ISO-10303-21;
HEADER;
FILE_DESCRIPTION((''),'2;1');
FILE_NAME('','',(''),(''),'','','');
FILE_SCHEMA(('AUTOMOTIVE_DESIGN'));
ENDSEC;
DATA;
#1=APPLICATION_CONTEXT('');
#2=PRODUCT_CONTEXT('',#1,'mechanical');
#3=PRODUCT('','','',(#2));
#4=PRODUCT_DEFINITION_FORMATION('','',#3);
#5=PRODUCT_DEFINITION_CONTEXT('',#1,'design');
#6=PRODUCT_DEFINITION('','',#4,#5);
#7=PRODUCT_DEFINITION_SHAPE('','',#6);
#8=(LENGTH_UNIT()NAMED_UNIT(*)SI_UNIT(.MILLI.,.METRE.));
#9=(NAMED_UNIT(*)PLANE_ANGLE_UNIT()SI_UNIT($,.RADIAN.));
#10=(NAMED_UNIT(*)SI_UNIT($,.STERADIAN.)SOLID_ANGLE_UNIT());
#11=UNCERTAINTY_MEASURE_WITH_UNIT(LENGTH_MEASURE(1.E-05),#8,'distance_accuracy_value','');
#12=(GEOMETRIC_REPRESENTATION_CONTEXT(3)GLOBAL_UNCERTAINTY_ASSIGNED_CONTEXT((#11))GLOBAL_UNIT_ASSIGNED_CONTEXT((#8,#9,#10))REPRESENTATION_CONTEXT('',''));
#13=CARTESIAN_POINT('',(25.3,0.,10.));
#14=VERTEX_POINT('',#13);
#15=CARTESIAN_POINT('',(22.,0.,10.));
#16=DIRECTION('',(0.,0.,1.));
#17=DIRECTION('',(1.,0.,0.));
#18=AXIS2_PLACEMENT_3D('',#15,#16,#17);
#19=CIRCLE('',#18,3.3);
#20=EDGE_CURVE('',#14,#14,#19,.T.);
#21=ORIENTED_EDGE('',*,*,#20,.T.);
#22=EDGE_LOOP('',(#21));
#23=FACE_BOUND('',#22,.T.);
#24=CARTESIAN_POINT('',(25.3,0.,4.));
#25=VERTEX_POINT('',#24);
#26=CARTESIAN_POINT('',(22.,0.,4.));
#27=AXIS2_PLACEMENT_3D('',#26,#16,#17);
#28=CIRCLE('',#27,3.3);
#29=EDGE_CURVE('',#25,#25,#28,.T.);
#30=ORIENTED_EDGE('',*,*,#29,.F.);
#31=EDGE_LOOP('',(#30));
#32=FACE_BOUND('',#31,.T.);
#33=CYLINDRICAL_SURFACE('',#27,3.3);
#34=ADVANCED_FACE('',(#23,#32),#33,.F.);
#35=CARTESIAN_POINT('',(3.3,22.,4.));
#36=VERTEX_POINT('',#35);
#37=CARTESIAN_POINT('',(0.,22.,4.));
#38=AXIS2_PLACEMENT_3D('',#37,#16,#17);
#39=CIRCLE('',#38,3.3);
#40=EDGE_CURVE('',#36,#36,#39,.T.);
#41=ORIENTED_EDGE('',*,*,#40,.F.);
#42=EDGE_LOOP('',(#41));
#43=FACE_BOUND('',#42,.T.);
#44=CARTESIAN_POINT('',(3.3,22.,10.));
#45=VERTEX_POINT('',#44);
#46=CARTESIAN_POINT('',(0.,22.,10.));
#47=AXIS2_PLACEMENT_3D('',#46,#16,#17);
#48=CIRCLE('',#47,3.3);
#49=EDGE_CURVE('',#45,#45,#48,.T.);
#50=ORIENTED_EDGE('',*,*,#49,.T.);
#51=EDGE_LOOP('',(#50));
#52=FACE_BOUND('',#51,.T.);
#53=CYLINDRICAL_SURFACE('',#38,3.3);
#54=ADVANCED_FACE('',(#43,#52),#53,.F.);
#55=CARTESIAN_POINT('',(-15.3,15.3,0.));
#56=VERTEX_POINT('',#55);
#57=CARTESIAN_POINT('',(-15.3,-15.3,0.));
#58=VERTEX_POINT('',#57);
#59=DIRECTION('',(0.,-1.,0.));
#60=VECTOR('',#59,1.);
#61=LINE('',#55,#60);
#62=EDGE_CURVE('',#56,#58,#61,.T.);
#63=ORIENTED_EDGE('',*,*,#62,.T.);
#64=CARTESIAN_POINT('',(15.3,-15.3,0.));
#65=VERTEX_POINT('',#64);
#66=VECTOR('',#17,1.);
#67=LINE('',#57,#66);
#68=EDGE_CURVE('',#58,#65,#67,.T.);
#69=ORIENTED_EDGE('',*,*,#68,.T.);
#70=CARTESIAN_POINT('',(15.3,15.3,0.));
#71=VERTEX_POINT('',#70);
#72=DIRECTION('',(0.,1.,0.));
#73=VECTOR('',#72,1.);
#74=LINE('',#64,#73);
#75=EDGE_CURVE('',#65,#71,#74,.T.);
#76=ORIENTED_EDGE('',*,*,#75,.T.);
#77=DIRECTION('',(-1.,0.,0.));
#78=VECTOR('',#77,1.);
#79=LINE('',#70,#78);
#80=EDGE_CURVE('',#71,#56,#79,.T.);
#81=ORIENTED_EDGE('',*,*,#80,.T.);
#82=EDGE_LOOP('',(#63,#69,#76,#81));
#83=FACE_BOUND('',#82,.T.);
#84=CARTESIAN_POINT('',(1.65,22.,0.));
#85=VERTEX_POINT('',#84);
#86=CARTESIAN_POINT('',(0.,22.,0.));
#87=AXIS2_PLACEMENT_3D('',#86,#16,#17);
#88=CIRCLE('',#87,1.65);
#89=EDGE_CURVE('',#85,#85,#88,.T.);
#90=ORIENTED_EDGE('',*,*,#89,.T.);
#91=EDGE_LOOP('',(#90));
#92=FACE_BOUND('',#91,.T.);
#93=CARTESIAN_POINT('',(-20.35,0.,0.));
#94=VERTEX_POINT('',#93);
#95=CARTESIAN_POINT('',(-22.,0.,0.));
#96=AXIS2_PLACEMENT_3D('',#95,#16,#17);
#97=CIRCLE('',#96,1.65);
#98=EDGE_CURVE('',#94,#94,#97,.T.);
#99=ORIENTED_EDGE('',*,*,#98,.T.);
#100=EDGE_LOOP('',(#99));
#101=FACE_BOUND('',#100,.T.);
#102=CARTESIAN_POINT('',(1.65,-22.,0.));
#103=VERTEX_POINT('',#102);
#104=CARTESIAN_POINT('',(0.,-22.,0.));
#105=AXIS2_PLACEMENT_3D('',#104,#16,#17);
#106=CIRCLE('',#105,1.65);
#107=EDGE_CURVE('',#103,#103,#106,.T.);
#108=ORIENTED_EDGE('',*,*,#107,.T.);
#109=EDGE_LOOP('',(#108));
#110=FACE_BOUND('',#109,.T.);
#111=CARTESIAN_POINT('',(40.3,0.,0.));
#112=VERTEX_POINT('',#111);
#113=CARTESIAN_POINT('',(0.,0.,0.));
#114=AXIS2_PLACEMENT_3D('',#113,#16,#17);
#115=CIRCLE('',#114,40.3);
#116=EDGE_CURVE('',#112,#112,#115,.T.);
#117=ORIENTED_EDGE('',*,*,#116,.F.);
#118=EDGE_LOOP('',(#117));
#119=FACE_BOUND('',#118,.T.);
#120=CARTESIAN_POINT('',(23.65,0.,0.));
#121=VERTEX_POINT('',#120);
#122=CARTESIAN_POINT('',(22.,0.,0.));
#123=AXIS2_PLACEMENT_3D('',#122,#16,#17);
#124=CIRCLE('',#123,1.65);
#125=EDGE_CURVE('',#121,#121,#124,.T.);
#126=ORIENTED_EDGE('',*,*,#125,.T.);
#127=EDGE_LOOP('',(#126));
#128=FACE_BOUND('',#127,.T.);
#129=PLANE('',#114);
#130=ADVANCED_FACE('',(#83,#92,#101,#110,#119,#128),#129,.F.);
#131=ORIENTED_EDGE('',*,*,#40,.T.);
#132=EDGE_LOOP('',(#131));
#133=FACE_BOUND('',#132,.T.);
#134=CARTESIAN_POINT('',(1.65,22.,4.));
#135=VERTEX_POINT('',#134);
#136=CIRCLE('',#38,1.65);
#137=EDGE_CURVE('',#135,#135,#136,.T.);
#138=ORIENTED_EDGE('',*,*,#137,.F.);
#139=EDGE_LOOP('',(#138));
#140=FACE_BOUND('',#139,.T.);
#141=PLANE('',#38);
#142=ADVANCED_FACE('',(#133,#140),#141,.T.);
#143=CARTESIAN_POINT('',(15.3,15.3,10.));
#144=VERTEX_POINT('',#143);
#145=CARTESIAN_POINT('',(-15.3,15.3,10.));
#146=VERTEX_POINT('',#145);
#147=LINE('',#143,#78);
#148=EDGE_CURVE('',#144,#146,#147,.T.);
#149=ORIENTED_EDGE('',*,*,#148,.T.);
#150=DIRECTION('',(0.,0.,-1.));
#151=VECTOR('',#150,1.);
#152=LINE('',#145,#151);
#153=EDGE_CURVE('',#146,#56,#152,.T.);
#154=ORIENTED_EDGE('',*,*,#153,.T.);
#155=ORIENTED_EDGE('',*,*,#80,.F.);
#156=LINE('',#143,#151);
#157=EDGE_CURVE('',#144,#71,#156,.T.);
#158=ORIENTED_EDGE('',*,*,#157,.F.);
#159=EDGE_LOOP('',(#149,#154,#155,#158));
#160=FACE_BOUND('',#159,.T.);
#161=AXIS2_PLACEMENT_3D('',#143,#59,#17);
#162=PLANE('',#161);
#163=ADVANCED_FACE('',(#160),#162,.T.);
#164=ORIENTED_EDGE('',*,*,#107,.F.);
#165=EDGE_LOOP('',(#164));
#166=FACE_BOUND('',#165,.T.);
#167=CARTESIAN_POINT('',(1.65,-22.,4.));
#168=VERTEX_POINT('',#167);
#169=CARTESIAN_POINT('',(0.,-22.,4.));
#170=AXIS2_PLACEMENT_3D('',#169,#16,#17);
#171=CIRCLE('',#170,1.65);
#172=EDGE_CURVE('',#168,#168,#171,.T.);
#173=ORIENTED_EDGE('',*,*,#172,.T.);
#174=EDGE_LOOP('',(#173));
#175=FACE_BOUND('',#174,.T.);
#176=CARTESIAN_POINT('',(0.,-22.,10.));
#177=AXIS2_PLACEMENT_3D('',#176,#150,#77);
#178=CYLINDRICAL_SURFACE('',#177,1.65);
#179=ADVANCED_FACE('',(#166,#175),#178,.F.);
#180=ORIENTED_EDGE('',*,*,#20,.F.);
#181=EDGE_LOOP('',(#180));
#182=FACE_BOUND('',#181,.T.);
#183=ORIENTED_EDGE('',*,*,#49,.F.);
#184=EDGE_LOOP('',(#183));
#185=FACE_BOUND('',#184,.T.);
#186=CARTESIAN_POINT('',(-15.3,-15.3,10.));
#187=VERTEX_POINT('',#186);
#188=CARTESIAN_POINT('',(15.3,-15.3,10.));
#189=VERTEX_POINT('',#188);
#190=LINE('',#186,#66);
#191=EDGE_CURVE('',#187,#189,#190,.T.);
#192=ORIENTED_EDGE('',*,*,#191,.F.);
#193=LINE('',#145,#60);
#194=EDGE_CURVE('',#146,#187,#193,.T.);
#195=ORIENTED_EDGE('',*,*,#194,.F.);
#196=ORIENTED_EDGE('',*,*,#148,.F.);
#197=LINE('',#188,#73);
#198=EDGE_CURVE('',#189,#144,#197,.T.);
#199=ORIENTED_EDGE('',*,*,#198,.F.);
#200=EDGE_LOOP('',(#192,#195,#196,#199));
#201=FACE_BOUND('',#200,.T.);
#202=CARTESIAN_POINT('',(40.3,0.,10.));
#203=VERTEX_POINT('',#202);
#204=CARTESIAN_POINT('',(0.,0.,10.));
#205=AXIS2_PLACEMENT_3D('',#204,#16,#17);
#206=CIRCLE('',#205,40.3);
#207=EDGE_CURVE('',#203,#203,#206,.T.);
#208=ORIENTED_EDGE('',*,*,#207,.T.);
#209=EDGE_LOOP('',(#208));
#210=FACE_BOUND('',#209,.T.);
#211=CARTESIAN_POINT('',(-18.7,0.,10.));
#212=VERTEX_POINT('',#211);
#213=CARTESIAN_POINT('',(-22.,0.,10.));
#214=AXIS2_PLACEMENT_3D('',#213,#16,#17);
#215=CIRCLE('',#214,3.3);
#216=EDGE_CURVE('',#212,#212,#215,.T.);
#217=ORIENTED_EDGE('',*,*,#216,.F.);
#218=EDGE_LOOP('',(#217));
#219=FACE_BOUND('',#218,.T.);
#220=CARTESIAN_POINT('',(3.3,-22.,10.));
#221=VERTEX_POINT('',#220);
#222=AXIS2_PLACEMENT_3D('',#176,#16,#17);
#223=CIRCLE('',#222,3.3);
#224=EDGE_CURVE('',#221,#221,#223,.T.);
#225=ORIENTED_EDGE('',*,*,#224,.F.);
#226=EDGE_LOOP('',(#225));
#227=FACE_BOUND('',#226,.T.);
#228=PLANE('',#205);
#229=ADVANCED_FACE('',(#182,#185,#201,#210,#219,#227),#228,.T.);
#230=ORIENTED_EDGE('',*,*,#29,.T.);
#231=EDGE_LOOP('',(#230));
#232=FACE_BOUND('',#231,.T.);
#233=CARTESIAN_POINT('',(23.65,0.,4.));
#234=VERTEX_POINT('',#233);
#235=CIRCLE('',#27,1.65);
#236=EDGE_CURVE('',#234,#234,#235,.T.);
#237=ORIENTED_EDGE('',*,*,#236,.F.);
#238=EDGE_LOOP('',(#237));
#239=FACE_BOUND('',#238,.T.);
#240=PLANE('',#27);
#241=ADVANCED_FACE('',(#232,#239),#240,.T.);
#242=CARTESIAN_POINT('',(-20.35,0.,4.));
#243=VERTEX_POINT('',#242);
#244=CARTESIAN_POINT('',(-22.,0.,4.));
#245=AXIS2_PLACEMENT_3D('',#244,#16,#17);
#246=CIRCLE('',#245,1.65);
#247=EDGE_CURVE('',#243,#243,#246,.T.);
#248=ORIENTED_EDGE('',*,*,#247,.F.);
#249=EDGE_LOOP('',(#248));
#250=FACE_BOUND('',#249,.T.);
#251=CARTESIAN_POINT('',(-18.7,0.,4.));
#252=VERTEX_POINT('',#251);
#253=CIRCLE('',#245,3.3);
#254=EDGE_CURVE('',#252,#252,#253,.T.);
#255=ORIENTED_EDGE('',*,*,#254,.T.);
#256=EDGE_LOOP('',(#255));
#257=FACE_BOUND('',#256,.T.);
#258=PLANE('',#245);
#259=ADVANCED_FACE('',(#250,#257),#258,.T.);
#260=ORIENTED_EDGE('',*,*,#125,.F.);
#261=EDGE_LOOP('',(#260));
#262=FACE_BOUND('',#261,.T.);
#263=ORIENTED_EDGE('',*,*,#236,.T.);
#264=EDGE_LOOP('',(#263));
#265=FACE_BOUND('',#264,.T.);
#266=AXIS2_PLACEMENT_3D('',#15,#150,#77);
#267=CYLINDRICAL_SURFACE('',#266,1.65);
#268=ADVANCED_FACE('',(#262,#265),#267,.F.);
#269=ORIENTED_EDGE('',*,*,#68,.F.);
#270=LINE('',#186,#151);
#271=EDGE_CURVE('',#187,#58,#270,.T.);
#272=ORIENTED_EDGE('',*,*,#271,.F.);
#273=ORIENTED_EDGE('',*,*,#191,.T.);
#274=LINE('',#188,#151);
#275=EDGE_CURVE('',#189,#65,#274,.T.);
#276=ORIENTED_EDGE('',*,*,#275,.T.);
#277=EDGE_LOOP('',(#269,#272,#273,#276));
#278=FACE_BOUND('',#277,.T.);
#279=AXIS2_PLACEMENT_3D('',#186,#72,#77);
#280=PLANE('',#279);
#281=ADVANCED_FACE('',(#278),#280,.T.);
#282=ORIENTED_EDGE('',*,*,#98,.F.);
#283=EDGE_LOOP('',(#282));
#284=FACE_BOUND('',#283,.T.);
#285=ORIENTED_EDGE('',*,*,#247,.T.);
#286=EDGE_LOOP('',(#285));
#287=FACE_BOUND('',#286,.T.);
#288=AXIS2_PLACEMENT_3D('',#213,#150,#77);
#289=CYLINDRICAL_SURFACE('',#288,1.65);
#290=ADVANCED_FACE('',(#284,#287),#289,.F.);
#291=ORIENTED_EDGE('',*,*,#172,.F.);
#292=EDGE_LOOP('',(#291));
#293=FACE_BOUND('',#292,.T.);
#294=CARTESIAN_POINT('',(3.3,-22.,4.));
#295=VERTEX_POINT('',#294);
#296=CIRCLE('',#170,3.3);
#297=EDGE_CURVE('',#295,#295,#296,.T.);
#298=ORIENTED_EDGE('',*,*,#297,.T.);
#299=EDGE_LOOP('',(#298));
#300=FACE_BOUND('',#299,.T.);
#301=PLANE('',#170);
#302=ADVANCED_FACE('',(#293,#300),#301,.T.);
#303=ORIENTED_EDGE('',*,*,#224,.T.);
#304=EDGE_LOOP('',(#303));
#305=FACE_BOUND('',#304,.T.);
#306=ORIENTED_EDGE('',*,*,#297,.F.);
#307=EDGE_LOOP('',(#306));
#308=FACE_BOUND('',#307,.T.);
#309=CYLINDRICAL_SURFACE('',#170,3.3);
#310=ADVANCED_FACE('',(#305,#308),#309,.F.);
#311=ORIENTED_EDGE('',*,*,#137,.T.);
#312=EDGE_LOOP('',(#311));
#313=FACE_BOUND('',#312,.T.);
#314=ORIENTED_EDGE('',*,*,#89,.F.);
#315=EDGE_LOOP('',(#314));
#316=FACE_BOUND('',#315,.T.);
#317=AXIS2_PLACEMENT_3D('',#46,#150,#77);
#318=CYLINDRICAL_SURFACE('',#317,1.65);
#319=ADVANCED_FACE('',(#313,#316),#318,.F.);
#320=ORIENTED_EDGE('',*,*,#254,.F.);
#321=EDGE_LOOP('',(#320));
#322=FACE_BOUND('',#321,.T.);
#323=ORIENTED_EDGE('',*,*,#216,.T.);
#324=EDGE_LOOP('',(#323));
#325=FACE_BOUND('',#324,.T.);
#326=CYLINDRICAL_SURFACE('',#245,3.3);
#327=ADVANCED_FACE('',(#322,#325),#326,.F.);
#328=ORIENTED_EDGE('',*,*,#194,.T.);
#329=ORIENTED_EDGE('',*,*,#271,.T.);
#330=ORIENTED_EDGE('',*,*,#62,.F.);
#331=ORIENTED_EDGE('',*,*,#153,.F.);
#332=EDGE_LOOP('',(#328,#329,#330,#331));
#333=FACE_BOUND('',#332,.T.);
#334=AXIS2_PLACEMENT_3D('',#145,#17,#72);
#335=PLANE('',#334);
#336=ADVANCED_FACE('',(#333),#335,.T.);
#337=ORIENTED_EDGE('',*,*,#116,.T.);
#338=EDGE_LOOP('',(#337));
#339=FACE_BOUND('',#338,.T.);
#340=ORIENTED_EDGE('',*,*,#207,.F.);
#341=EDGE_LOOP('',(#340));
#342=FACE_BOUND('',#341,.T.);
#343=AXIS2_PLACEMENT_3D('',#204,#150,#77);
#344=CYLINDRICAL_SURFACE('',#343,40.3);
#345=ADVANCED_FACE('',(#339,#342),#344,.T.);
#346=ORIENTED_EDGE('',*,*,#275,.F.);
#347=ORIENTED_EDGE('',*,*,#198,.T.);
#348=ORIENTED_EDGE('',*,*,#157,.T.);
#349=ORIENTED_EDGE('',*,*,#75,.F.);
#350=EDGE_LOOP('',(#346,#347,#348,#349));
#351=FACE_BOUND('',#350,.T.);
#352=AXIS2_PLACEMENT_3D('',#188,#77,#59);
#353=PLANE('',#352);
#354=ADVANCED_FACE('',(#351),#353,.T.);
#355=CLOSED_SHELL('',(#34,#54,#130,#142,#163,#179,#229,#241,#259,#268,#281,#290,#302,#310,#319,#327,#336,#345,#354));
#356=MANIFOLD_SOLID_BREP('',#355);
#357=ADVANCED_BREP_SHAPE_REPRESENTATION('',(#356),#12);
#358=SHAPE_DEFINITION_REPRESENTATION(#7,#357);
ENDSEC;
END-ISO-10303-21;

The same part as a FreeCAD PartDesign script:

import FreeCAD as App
import Part
import Sketcher
from FreeCAD import Vector


def add_polygon(sketch, points):
    """Adds a closed chain of lines whose ends are joined by coincident constraints."""
    first, n = sketch.GeometryCount, len(points)
    for a, b in zip(points, points[1:] + points[:1]):
        sketch.addGeometry(Part.LineSegment(App.Vector(*a, 0), App.Vector(*b, 0)), False)
    for i in range(n):
        sketch.addConstraint(Sketcher.Constraint("Coincident", first + i, 2, first + (i + 1) % n, 1))

doc = App.newDocument("Part")
body = doc.addObject("PartDesign::Body", "Body")

# Sketch on XY plane
sketch1 = body.newObject("Sketcher::SketchObject", "Sketch")
sketch1.AttachmentSupport = (doc.getObject("XY_Plane"), [""])
sketch1.MapMode = "FlatFace"
sketch1.addGeometry(Part.Circle(Vector(0, 0, 0), Vector(0, 0, 1), 40.3), False)  # 0
sketch1.addGeometry(Part.Circle(Vector(0, -22, 0), Vector(0, 0, 1), 1.6), False)  # 1
sketch1.addGeometry(Part.Circle(Vector(-22, 0, 0), Vector(0, 0, 1), 1.6), False)  # 2
add_polygon(sketch1, [(15.3, -15.3), (-15.3, -15.3), (-15.3, 15.3), (15.3, 15.3)])  # lines 3-6
sketch1.addGeometry(Part.Circle(Vector(22, 0, 0), Vector(0, 0, 1), 1.6), False)  # 7
sketch1.addGeometry(Part.Circle(Vector(0, 22, 0), Vector(0, 0, 1), 1.6), False)  # 8
sketch1.addConstraint([
    Sketcher.Constraint("Horizontal", 3),
    Sketcher.Constraint("Vertical", 4),
    Sketcher.Constraint("Horizontal", 5),
    Sketcher.Constraint("Vertical", 6),
    Sketcher.Constraint("Coincident", 0, 3, -1, 1),
    Sketcher.Constraint("Equal", 1, 2),
    Sketcher.Constraint("Equal", 2, 7),
    Sketcher.Constraint("Equal", 7, 8),
    Sketcher.Constraint("Symmetric", 2, 3, 7, 3, -1, 1),
    Sketcher.Constraint("Symmetric", 1, 3, 8, 3, -1, 1),
    Sketcher.Constraint("Symmetric", 3, 2, 5, 2, -1, 1),
    Sketcher.Constraint("PointOnObject", 1, 3, -2),
    Sketcher.Constraint("PointOnObject", 2, 3, -1),
    Sketcher.Constraint("Equal", 5, 4),
    Sketcher.Constraint("Diameter", 0, 80.6),
    Sketcher.Constraint("Diameter", 1, 3.3),
    Sketcher.Constraint("DistanceX", 3, 2, 3, 1, 30.6),
    Sketcher.Constraint("DistanceY", 1, 3, -1, 1, 22.0),
    Sketcher.Constraint("DistanceX", 2, 3, -1, 1, 22.0),
])
pad1 = body.newObject("PartDesign::Pad", "Pad")
pad1.Profile = sketch1
pad1.Length = 10

# Sketch on XY plane
sketch2 = body.newObject("Sketcher::SketchObject", "Sketch001")
sketch2.AttachmentSupport = (doc.getObject("XY_Plane"), [""])
sketch2.MapMode = "FlatFace"
sketch2.AttachmentOffset = App.Placement(Vector(0, 0, 10), App.Rotation())
sketch2.addGeometry([
    Part.Circle(Vector(22, 0, 0), Vector(0, 0, 1), 3.3),
    Part.Circle(Vector(0, 22, 0), Vector(0, 0, 1), 3.3),
    Part.Circle(Vector(-22, 0, 0), Vector(0, 0, 1), 3.3),
    Part.Circle(Vector(0, -22, 0), Vector(0, 0, 1), 3.3),
], False)
sketch2.addConstraint([
    Sketcher.Constraint("Equal", 0, 1),
    Sketcher.Constraint("Equal", 1, 2),
    Sketcher.Constraint("Equal", 2, 3),
    Sketcher.Constraint("Symmetric", 0, 3, 2, 3, -1, 1),
    Sketcher.Constraint("Symmetric", 1, 3, 3, 3, -1, 1),
    Sketcher.Constraint("PointOnObject", 0, 3, -1),
    Sketcher.Constraint("PointOnObject", 1, 3, -2),
    Sketcher.Constraint("Diameter", 0, 6.6),
    Sketcher.Constraint("DistanceX", -1, 1, 0, 3, 22.0),
    Sketcher.Constraint("DistanceY", -1, 1, 1, 3, 22.0),
])
pocket1 = body.newObject("PartDesign::Pocket", "Pocket")
pocket1.Profile = sketch2
pocket1.Length = 6

doc.recompute()
